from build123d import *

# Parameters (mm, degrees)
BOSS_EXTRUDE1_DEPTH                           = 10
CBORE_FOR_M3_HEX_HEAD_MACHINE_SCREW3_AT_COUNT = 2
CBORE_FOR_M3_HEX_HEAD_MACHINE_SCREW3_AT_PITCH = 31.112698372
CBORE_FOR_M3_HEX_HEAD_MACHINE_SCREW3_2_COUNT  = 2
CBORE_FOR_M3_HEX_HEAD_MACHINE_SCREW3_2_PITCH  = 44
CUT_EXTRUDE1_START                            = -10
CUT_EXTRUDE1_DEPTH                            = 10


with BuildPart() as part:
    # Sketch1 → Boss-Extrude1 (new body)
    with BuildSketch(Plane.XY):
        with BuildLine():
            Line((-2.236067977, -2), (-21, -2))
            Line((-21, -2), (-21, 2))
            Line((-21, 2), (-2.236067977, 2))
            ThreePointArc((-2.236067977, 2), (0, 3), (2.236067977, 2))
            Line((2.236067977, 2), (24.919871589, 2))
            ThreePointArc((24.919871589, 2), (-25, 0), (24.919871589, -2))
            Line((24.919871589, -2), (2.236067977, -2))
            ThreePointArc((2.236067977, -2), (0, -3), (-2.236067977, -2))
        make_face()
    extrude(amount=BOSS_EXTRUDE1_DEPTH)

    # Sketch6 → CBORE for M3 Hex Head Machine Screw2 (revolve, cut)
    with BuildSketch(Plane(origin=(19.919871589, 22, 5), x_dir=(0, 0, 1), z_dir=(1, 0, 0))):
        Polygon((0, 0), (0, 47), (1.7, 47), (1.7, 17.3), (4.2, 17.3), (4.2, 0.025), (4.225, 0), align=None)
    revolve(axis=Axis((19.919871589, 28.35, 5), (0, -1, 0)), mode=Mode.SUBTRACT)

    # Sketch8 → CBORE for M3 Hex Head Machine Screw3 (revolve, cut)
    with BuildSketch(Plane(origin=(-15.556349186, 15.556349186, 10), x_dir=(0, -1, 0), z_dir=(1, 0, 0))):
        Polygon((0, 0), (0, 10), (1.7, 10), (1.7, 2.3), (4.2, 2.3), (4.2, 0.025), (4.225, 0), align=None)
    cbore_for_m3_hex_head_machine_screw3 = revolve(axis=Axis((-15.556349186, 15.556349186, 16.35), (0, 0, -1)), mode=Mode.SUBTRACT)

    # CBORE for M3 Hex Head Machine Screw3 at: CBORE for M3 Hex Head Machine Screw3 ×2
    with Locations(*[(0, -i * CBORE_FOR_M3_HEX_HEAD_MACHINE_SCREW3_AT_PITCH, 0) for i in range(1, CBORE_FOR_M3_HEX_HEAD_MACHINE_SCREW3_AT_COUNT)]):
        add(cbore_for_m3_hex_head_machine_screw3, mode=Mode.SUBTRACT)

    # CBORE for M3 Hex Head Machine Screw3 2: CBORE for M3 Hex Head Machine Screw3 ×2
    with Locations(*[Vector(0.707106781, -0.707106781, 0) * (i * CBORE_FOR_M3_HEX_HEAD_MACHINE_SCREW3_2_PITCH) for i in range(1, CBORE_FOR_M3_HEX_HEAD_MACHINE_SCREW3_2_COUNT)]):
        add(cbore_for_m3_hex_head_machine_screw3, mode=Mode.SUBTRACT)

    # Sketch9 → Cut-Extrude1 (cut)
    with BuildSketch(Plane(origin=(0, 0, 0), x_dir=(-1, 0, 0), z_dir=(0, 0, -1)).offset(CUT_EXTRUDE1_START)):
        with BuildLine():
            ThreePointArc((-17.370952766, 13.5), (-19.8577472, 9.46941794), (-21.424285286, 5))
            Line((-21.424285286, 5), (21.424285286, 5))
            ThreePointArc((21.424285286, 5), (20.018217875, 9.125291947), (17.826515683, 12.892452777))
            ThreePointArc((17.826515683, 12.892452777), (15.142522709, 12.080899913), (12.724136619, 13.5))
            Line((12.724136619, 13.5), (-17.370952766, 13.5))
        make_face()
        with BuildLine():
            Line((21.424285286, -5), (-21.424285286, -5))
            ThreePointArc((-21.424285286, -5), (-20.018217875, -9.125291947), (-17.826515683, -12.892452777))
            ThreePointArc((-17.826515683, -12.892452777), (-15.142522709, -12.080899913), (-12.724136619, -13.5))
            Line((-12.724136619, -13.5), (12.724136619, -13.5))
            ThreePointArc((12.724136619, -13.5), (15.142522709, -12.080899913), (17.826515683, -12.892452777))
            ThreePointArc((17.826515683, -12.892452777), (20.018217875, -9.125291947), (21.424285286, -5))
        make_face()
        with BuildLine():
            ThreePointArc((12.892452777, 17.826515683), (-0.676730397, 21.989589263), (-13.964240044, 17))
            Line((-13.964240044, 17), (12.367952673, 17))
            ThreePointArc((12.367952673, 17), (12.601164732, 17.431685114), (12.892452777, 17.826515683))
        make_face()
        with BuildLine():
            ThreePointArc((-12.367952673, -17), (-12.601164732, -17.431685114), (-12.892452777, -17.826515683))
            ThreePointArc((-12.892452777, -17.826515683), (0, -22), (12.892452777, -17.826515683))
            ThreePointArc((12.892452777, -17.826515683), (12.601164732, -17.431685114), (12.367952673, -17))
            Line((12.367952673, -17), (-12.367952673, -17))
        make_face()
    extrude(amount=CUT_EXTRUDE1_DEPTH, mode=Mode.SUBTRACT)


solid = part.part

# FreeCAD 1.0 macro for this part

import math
import FreeCAD as App
import Part
import Sketcher
from FreeCAD import Vector
Q = App.Units.Quantity

doc = App.newDocument("Part")
params = doc.addObject("Spreadsheet::Sheet", "Params")
for row, (alias, value) in enumerate([
    ("sketch1_radius", "3 mm"),
    ("sketch1_radius2", "25 mm"),
    ("sketch1_height", "4 mm"),
    ("pad1_length", "10 mm"),
    ("sketch2_width", "47 mm"),
    ("sketch2_width2", "29.7 mm"),
    ("sketch2_height", "2.5 mm"),
    ("sketch2_height2", "1.7 mm"),
    ("groove_angle", "360 deg"),
    ("sketch3_height", "10 mm"),
    ("sketch3_width", "2.5 mm"),
    ("sketch3_width2", "1.7 mm"),
    ("sketch3_height2", "7.7 mm"),
    ("groove2_angle", "360 deg"),
    ("linearpattern_pitch", "31.112698 mm"),
    ("linearpattern2_pitch", "44 mm"),
    ("sketch4_radius", "22 mm"),
    ("sketch4_radius2", "3.5 mm"),
    ("pocket1_length", "10 mm"),
], start=1):
    params.set(f"A{row}", alias)
    params.set(f"B{row}", "=" + value)
    params.setAlias(f"B{row}", alias)

body = doc.addObject("PartDesign::Body", "Body")

# Sketch on XY plane
sketch1 = body.newObject("Sketcher::SketchObject", "Sketch")
sketch1.AttachmentSupport = (doc.getObject("XY_Plane"), [""])
sketch1.MapMode = "FlatFace"
sketch1.addGeometry([
    Part.LineSegment(Vector(-2.2, -2, 0), Vector(-21, -2, 0)),  # 0
    Part.LineSegment(Vector(-21, -2, 0), Vector(-21, 2, 0)),  # 1
    Part.LineSegment(Vector(-21, 2, 0), Vector(-2.2, 2, 0)),  # 2
    Part.ArcOfCircle(Part.Circle(Vector(0, 0, 0), Vector(0, 0, 1), 3), math.radians(42), math.radians(138)),  # 3
    Part.LineSegment(Vector(2.2, 2, 0), Vector(24.9, 2, 0)),  # 4
    Part.ArcOfCircle(Part.Circle(Vector(0, 0, 0), Vector(0, 0, 1), 25), math.radians(5), math.radians(355)),  # 5
    Part.LineSegment(Vector(24.9, -2, 0), Vector(2.2, -2, 0)),  # 6
    Part.ArcOfCircle(Part.Circle(Vector(0, 0, 0), Vector(0, 0, 1), 3), math.radians(-138), math.radians(-42)),  # 7
], False)
sketch1.addConstraint([
    Sketcher.Constraint("Coincident", 0, 2, 1, 1),
    Sketcher.Constraint("Coincident", 1, 2, 2, 1),
    Sketcher.Constraint("Coincident", 2, 2, 3, 2),
    Sketcher.Constraint("Coincident", 3, 1, 4, 1),
    Sketcher.Constraint("Coincident", 4, 2, 5, 1),
    Sketcher.Constraint("Coincident", 5, 2, 6, 1),
    Sketcher.Constraint("Coincident", 6, 2, 7, 2),
    Sketcher.Constraint("Coincident", 7, 1, 0, 1),
    Sketcher.Constraint("Horizontal", 0),
    Sketcher.Constraint("Vertical", 1),
    Sketcher.Constraint("Horizontal", 2),
    Sketcher.Constraint("Horizontal", 4),
    Sketcher.Constraint("Horizontal", 6),
    Sketcher.Constraint("Coincident", 3, 3, -1, 1),
    Sketcher.Constraint("Coincident", 5, 3, -1, 1),
    Sketcher.Constraint("Coincident", 7, 3, -1, 1),
    Sketcher.Constraint("Equal", 3, 7),
    Sketcher.Constraint("Horizontal", 2, 2, 3, 1),
    Sketcher.Constraint("Horizontal", 0, 2, 5, 2),
    Sketcher.Constraint("Vertical", 4, 2, 5, 2),
    Sketcher.Constraint("Radius", 3, 3.0),
    Sketcher.Constraint("Radius", 5, 25.0),
    Sketcher.Constraint("DistanceY", 1, 1, 1, 2, 4.0),
    Sketcher.Constraint("DistanceX", 0, 2, -1, 1, 21.0),
])
sketch1.setExpression("Constraints[20]", "Params.sketch1_radius")
sketch1.setExpression("Constraints[21]", "Params.sketch1_radius2")
sketch1.setExpression("Constraints[22]", "Params.sketch1_height")
pad1 = body.newObject("PartDesign::Pad", "Pad")
pad1.Profile = sketch1
pad1.setExpression("Length", "Params.pad1_length")

# Sketch on YZ plane
sketch2 = body.newObject("Sketcher::SketchObject", "Sketch001")
sketch2.AttachmentSupport = (doc.getObject("YZ_Plane"), [""])
sketch2.MapMode = "FlatFace"
sketch2.AttachmentOffset = App.Placement(Vector(0, 0, 19.919872), App.Rotation())
sketch2.addGeometry([
    Part.LineSegment(Vector(-25, 5, 0), Vector(22, 5, 0)),  # 0
    Part.LineSegment(Vector(22, 5, 0), Vector(22, 9.225, 0)),  # 1
    Part.LineSegment(Vector(22, 9.225, 0), Vector(21.975, 9.2, 0)),  # 2
    Part.LineSegment(Vector(21.975, 9.2, 0), Vector(4.7, 9.2, 0)),  # 3
    Part.LineSegment(Vector(4.7, 9.2, 0), Vector(4.7, 6.7, 0)),  # 4
    Part.LineSegment(Vector(4.7, 6.7, 0), Vector(-25, 6.7, 0)),  # 5
    Part.LineSegment(Vector(-25, 6.7, 0), Vector(-25, 5, 0)),  # 6
], False)
sketch2.addGeometry(Part.LineSegment(Vector(22, 5, 0), Vector(-25, 5, 0)), True)  # axis
sketch2.addConstraint([
    Sketcher.Constraint("Coincident", 0, 2, 1, 1),
    Sketcher.Constraint("Coincident", 1, 2, 2, 1),
    Sketcher.Constraint("Coincident", 2, 2, 3, 1),
    Sketcher.Constraint("Coincident", 3, 2, 4, 1),
    Sketcher.Constraint("Coincident", 4, 2, 5, 1),
    Sketcher.Constraint("Coincident", 5, 2, 6, 1),
    Sketcher.Constraint("Coincident", 6, 2, 0, 1),
    Sketcher.Constraint("Horizontal", 0),
    Sketcher.Constraint("Vertical", 1),
    Sketcher.Constraint("Horizontal", 3),
    Sketcher.Constraint("Vertical", 4),
    Sketcher.Constraint("Horizontal", 5),
    Sketcher.Constraint("Vertical", 6),
    Sketcher.Constraint("Horizontal", 7),
    Sketcher.Constraint("Coincident", 7, 1, 0, 2),
    Sketcher.Constraint("Vertical", 5, 2, 7, 2),
    Sketcher.Constraint("DistanceX", 0, 1, 0, 2, 47.0),
    Sketcher.Constraint("Angle", 2, Q("-135 deg")),
    Sketcher.Constraint("DistanceX", 5, 2, 5, 1, 29.7),
    Sketcher.Constraint("DistanceY", 4, 2, 4, 1, 2.5),
    Sketcher.Constraint("DistanceY", 6, 2, 6, 1, 1.7),
    Sketcher.Constraint("DistanceX", -1, 1, 0, 2, 22.0),
    Sketcher.Constraint("DistanceY", -1, 1, 0, 2, 5.0),
    Sketcher.Constraint("DistanceX", 3, 2, 3, 1, 17.275),
])
sketch2.setExpression("Constraints[16]", "Params.sketch2_width")
sketch2.setExpression("Constraints[18]", "Params.sketch2_width2")
sketch2.setExpression("Constraints[19]", "Params.sketch2_height")
sketch2.setExpression("Constraints[20]", "Params.sketch2_height2")
groove = body.newObject("PartDesign::Groove", "Groove")
groove.Profile = sketch2
groove.ReferenceAxis = (sketch2, ["Axis0"])
groove.setExpression("Angle", "Params.groove_angle")

# Sketch on YZ plane
sketch3 = body.newObject("Sketcher::SketchObject", "Sketch002")
sketch3.AttachmentSupport = (doc.getObject("YZ_Plane"), [""])
sketch3.MapMode = "FlatFace"
sketch3.AttachmentOffset = App.Placement(Vector(0, 0, -15.556349), App.Rotation())
sketch3.addGeometry([
    Part.LineSegment(Vector(15.556, 0, 0), Vector(15.556, 10, 0)),  # 0
    Part.LineSegment(Vector(15.556, 10, 0), Vector(11.331, 10, 0)),  # 1
    Part.LineSegment(Vector(11.331, 10, 0), Vector(11.356, 9.975, 0)),  # 2
    Part.LineSegment(Vector(11.356, 9.975, 0), Vector(11.356, 7.7, 0)),  # 3
    Part.LineSegment(Vector(11.356, 7.7, 0), Vector(13.856, 7.7, 0)),  # 4
    Part.LineSegment(Vector(13.856, 7.7, 0), Vector(13.856, 0, 0)),  # 5
    Part.LineSegment(Vector(13.856, 0, 0), Vector(15.556, 0, 0)),  # 6
], False)
sketch3.addGeometry(Part.LineSegment(Vector(15.556, 10, 0), Vector(15.556, 0, 0)), True)  # axis
sketch3.addConstraint([
    Sketcher.Constraint("Coincident", 0, 2, 1, 1),
    Sketcher.Constraint("Coincident", 1, 2, 2, 1),
    Sketcher.Constraint("Coincident", 2, 2, 3, 1),
    Sketcher.Constraint("Coincident", 3, 2, 4, 1),
    Sketcher.Constraint("Coincident", 4, 2, 5, 1),
    Sketcher.Constraint("Coincident", 5, 2, 6, 1),
    Sketcher.Constraint("Coincident", 6, 2, 0, 1),
    Sketcher.Constraint("Vertical", 0),
    Sketcher.Constraint("Horizontal", 1),
    Sketcher.Constraint("Vertical", 3),
    Sketcher.Constraint("Horizontal", 4),
    Sketcher.Constraint("Vertical", 5),
    Sketcher.Constraint("Horizontal", 6),
    Sketcher.Constraint("Vertical", 7),
    Sketcher.Constraint("Coincident", 7, 1, 0, 2),
    Sketcher.Constraint("PointOnObject", 5, 2, -1),
    Sketcher.Constraint("PointOnObject", 7, 2, -1),
    Sketcher.Constraint("DistanceY", 0, 1, 0, 2, 10.0),
    Sketcher.Constraint("Angle", 2, Q("-45 deg")),
    Sketcher.Constraint("DistanceX", 4, 1, 4, 2, 2.5),
    Sketcher.Constraint("DistanceX", 6, 1, 6, 2, 1.7),
    Sketcher.Constraint("DistanceY", 5, 2, 5, 1, 7.7),
    Sketcher.Constraint("DistanceX", 1, 2, 1, 1, 4.225),
    Sketcher.Constraint("DistanceX", -1, 1, 0, 2, 15.556349),
])
sketch3.setExpression("Constraints[17]", "Params.sketch3_height")
sketch3.setExpression("Constraints[19]", "Params.sketch3_width")
sketch3.setExpression("Constraints[20]", "Params.sketch3_width2")
sketch3.setExpression("Constraints[21]", "Params.sketch3_height2")
groove2 = body.newObject("PartDesign::Groove", "Groove001")
groove2.Profile = sketch3
groove2.ReferenceAxis = (sketch3, ["Axis0"])
groove2.setExpression("Angle", "Params.groove2_angle")
doc.recompute()

linearpattern = body.newObject("PartDesign::LinearPattern", "LinearPattern")
linearpattern.Originals = [groove2]
linearpattern.Direction = (doc.getObject("Y_Axis"), [""])
linearpattern.Mode = "offset"
linearpattern.setExpression("Offset", "Params.linearpattern_pitch")
linearpattern.Occurrences = 2
linearpattern.Reversed = True
body.Tip = linearpattern
doc.recompute()

datumline = body.newObject("PartDesign::Line", "DatumLine")
datumline.Placement = App.Placement(Vector(0, 0, 0), App.Rotation(Vector(0, 0, 1), Vector(0.707106781, -0.707106781, 0)))
linearpattern2 = body.newObject("PartDesign::LinearPattern", "LinearPattern001")
linearpattern2.Originals = [groove2]
linearpattern2.Direction = (datumline, [""])
linearpattern2.Mode = "offset"
linearpattern2.setExpression("Offset", "Params.linearpattern2_pitch")
linearpattern2.Occurrences = 2
body.Tip = linearpattern2

# Sketch on XY plane
sketch4 = body.newObject("Sketcher::SketchObject", "Sketch003")
sketch4.AttachmentSupport = (doc.getObject("XY_Plane"), [""])
sketch4.MapMode = "FlatFace"
sketch4.AttachmentOffset = App.Placement(Vector(0, 0, 10), App.Rotation())
sketch4.addGeometry([
    Part.ArcOfCircle(Part.Circle(Vector(0, 0, 0), Vector(0, 0, 1), 22), math.radians(13), math.radians(38)),  # 0
    Part.LineSegment(Vector(21.4, 5, 0), Vector(-21.4, 5, 0)),  # 1
    Part.ArcOfCircle(Part.Circle(Vector(0, 0, 0), Vector(0, 0, 1), 22), math.radians(144), math.radians(167)),  # 2
    Part.ArcOfCircle(Part.Circle(Vector(-15.6, 15.6, 0), Vector(0, 0, 1), 3.5), math.radians(-130), math.radians(-36)),  # 3
    Part.LineSegment(Vector(-12.7, 13.5, 0), Vector(17.4, 13.5, 0)),  # 4
    Part.LineSegment(Vector(-21.4, -5, 0), Vector(21.4, -5, 0)),  # 5
    Part.ArcOfCircle(Part.Circle(Vector(0, 0, 0), Vector(0, 0, 1), 22), math.radians(-36), math.radians(-13)),  # 6
    Part.ArcOfCircle(Part.Circle(Vector(15.6, -15.6, 0), Vector(0, 0, 1), 3.5), math.radians(50), math.radians(144)),  # 7
    Part.LineSegment(Vector(12.7, -13.5, 0), Vector(-12.7, -13.5, 0)),  # 8
    Part.ArcOfCircle(Part.Circle(Vector(-15.6, -15.6, 0), Vector(0, 0, 1), 3.5), math.radians(36), math.radians(130)),  # 9
    Part.ArcOfCircle(Part.Circle(Vector(0, 0, 0), Vector(0, 0, 1), 22), math.radians(-167), math.radians(-144)),  # 10
    Part.ArcOfCircle(Part.Circle(Vector(0, 0, 0), Vector(0, 0, 1), 22), math.radians(51), math.radians(126)),  # 11
    Part.LineSegment(Vector(14, 17, 0), Vector(-12.4, 17, 0)),  # 12
    Part.ArcOfCircle(Part.Circle(Vector(-15.6, 15.6, 0), Vector(0, 0, 1), 3.5), math.radians(24.36), math.radians(40.44)),  # 13
    Part.ArcOfCircle(Part.Circle(Vector(15.6, -15.6, 0), Vector(0, 0, 1), 3.5), math.radians(-155.64), math.radians(-139.56)),  # 14
    Part.ArcOfCircle(Part.Circle(Vector(0, 0, 0), Vector(0, 0, 1), 22), math.radians(-126), math.radians(-54)),  # 15
    Part.ArcOfCircle(Part.Circle(Vector(-15.6, -15.6, 0), Vector(0, 0, 1), 3.5), math.radians(-40.44), math.radians(-24.36)),  # 16
    Part.LineSegment(Vector(-12.4, -17, 0), Vector(12.4, -17, 0)),  # 17
], False)
sketch4.addConstraint([
    Sketcher.Constraint("Coincident", 0, 1, 1, 1),
    Sketcher.Constraint("Coincident", 1, 2, 2, 2),
    Sketcher.Constraint("Coincident", 2, 1, 3, 1),
    Sketcher.Constraint("Coincident", 3, 2, 4, 1),
    Sketcher.Constraint("Coincident", 4, 2, 0, 2),
    Sketcher.Constraint("Coincident", 5, 2, 6, 2),
    Sketcher.Constraint("Coincident", 6, 1, 7, 1),
    Sketcher.Constraint("Coincident", 7, 2, 8, 1),
    Sketcher.Constraint("Coincident", 8, 2, 9, 1),
    Sketcher.Constraint("Coincident", 9, 2, 10, 2),
    Sketcher.Constraint("Coincident", 10, 1, 5, 1),
    Sketcher.Constraint("Coincident", 11, 1, 12, 1),
    Sketcher.Constraint("Coincident", 12, 2, 13, 1),
    Sketcher.Constraint("Coincident", 13, 2, 11, 2),
    Sketcher.Constraint("Coincident", 14, 2, 15, 2),
    Sketcher.Constraint("Coincident", 15, 1, 16, 1),
    Sketcher.Constraint("Coincident", 16, 2, 17, 1),
    Sketcher.Constraint("Coincident", 17, 2, 14, 1),
    Sketcher.Constraint("Horizontal", 1),
    Sketcher.Constraint("Horizontal", 4),
    Sketcher.Constraint("Horizontal", 5),
    Sketcher.Constraint("Horizontal", 8),
    Sketcher.Constraint("Horizontal", 12),
    Sketcher.Constraint("Horizontal", 17),
    Sketcher.Constraint("Coincident", 0, 3, -1, 1),
    Sketcher.Constraint("Coincident", 2, 3, -1, 1),
    Sketcher.Constraint("Coincident", 6, 3, -1, 1),
    Sketcher.Constraint("Coincident", 10, 3, -1, 1),
    Sketcher.Constraint("Coincident", 11, 3, -1, 1),
    Sketcher.Constraint("Coincident", 15, 3, -1, 1),
    Sketcher.Constraint("Coincident", 13, 3, 3, 3),
    Sketcher.Constraint("Coincident", 14, 3, 7, 3),
    Sketcher.Constraint("Coincident", 16, 3, 9, 3),
    Sketcher.Constraint("Equal", 0, 2),
    Sketcher.Constraint("Equal", 2, 6),
    Sketcher.Constraint("Equal", 3, 7),
    Sketcher.Constraint("Equal", 7, 9),
    Sketcher.Constraint("Equal", 6, 10),
    Sketcher.Constraint("Equal", 10, 11),
    Sketcher.Constraint("Equal", 9, 13),
    Sketcher.Constraint("Equal", 13, 14),
    Sketcher.Constraint("Equal", 11, 15),
    Sketcher.Constraint("Equal", 14, 16),
    Sketcher.Constraint("Symmetric", 3, 3, 7, 3, -1, 1),
    Sketcher.Constraint("Symmetric", 7, 3, 9, 3, -2),
    Sketcher.Constraint("Vertical", 0, 1, 5, 2),
    Sketcher.Constraint("Vertical", 3, 2, 8, 2),
    Sketcher.Constraint("Vertical", 12, 2, 16, 2),
    Sketcher.Constraint("Radius", 0, 22.0),
    Sketcher.Constraint("Radius", 3, 3.5),
    Sketcher.Constraint("DistanceY", -1, 1, 0, 1, 5.0),
    Sketcher.Constraint("DistanceY", -1, 1, 11, 1, 17.0),
    Sketcher.Constraint("DistanceY", -1, 1, 3, 2, 13.5),
    Sketcher.Constraint("DistanceX", 4, 1, 4, 2, 30.095089),
    Sketcher.Constraint("DistanceX", 3, 3, 7, 3, 31.112698),
])
sketch4.setExpression("Constraints[48]", "Params.sketch4_radius")
sketch4.setExpression("Constraints[49]", "Params.sketch4_radius2")
pocket1 = body.newObject("PartDesign::Pocket", "Pocket")
pocket1.Profile = sketch4
pocket1.setExpression("Length", "Params.pocket1_length")

doc.recompute()
